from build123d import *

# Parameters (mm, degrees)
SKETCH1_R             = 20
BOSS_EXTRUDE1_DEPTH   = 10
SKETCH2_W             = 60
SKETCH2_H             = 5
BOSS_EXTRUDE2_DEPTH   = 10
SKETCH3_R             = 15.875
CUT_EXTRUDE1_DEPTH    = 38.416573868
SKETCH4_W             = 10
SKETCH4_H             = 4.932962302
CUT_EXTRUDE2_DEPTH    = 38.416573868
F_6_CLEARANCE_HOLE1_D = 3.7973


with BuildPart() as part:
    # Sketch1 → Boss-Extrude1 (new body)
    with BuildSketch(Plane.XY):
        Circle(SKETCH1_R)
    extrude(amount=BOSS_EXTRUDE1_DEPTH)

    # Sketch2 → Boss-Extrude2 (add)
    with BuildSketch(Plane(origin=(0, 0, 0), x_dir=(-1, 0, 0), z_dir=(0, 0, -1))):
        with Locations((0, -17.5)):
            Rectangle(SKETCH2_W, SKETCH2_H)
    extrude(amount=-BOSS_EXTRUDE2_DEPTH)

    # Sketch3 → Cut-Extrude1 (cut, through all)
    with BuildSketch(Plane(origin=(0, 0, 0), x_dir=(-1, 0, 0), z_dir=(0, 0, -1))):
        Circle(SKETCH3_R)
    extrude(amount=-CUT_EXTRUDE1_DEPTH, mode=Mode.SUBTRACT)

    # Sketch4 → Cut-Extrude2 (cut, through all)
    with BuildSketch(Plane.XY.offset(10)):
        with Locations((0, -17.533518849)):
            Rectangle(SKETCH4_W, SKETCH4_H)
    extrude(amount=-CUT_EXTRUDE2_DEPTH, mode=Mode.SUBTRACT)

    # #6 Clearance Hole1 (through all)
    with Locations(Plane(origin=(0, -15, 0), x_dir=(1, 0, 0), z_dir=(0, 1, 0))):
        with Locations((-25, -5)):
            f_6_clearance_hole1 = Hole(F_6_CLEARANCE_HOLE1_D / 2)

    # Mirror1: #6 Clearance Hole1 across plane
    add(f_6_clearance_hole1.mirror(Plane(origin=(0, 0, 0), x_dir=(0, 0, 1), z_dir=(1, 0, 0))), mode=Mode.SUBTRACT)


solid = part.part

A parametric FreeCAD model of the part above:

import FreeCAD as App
import Part
import Sketcher
from FreeCAD import Vector
Q = App.Units.Quantity

doc = App.newDocument("Part")
params = doc.addObject("Spreadsheet::Sheet", "Params")
for row, (alias, value) in enumerate([
    ("sketch1_diameter", "40 mm"),
    ("pad1_length", "10 mm"),
    ("sketch2_width", "60 mm"),
    ("sketch2_height", "5 mm"),
    ("pad2_length", "10 mm"),
    ("sketch3_diameter", "31.75 mm"),
    ("sketch4_width", "10 mm"),
    ("hole_diameter", "3.7973 mm"),
], start=1):
    params.set(f"A{row}", alias)
    params.set(f"B{row}", "=" + value)
    params.setAlias(f"B{row}", alias)

body = doc.addObject("PartDesign::Body", "Body")

# Sketch on XY plane
sketch1 = doc.addObject("Sketcher::SketchObject", "Sketch")
body.addObject(sketch1)
sketch1.AttachmentSupport = (doc.XY_Plane, [""])
sketch1.MapMode = "FlatFace"
sketch1.addGeometry(Part.Circle(Vector(0, 0, 0), Vector(0, 0, 1), 20), False)
sketch1.addConstraint(Sketcher.Constraint("Coincident", 0, 3, -1, 1))
sketch1.addConstraint(Sketcher.Constraint("Diameter", 0, Q("40 mm")))
sketch1.setExpression("Constraints[1]", "Params.sketch1_diameter")
pad1 = doc.addObject("PartDesign::Pad", "Pad")
body.addObject(pad1)
pad1.Profile = sketch1
pad1.setExpression("Length", "Params.pad1_length")

# Sketch on XY plane
sketch2 = doc.addObject("Sketcher::SketchObject", "Sketch001")
body.addObject(sketch2)
sketch2.AttachmentSupport = (doc.XY_Plane, [""])
sketch2.MapMode = "FlatFace"
sketch2.addGeometry(Part.LineSegment(Vector(30, -15, 0), Vector(30, -20, 0)), False)
sketch2.addGeometry(Part.LineSegment(Vector(30, -20, 0), Vector(-30, -20, 0)), False)
sketch2.addGeometry(Part.LineSegment(Vector(-30, -20, 0), Vector(-30, -15, 0)), False)
sketch2.addGeometry(Part.LineSegment(Vector(-30, -15, 0), Vector(30, -15, 0)), False)
sketch2.addConstraint(Sketcher.Constraint("Coincident", 0, 2, 1, 1))
sketch2.addConstraint(Sketcher.Constraint("Coincident", 1, 2, 2, 1))
sketch2.addConstraint(Sketcher.Constraint("Coincident", 2, 2, 3, 1))
sketch2.addConstraint(Sketcher.Constraint("Coincident", 3, 2, 0, 1))
sketch2.addConstraint(Sketcher.Constraint("Vertical", 0))
sketch2.addConstraint(Sketcher.Constraint("Horizontal", 1))
sketch2.addConstraint(Sketcher.Constraint("Vertical", 2))
sketch2.addConstraint(Sketcher.Constraint("Horizontal", 3))
sketch2.addConstraint(Sketcher.Constraint("DistanceX", 1, 2, 1, 1, Q("60 mm")))
sketch2.addConstraint(Sketcher.Constraint("DistanceY", 0, 2, 0, 1, Q("5 mm")))
sketch2.addConstraint(Sketcher.Constraint("DistanceX", -1, 1, 0, 2, Q("30 mm")))
sketch2.addConstraint(Sketcher.Constraint("DistanceY", 0, 2, -1, 1, Q("20 mm")))
sketch2.setExpression("Constraints[8]", "Params.sketch2_width")
sketch2.setExpression("Constraints[9]", "Params.sketch2_height")
pad2 = doc.addObject("PartDesign::Pad", "Pad001")
body.addObject(pad2)
pad2.Profile = sketch2
pad2.setExpression("Length", "Params.pad2_length")

# Sketch on XY plane
sketch3 = doc.addObject("Sketcher::SketchObject", "Sketch002")
body.addObject(sketch3)
sketch3.AttachmentSupport = (doc.XY_Plane, [""])
sketch3.MapMode = "FlatFace"
sketch3.addGeometry(Part.Circle(Vector(0, 0, 0), Vector(0, 0, 1), 15.875), False)
sketch3.addConstraint(Sketcher.Constraint("Coincident", 0, 3, -1, 1))
sketch3.addConstraint(Sketcher.Constraint("Diameter", 0, Q("31.75 mm")))
sketch3.setExpression("Constraints[1]", "Params.sketch3_diameter")
pocket1 = doc.addObject("PartDesign::Pocket", "Pocket")
body.addObject(pocket1)
pocket1.Profile = sketch3
pocket1.Type = "ThroughAll"
pocket1.Reversed = True

# Sketch on XY plane
sketch4 = doc.addObject("Sketcher::SketchObject", "Sketch003")
body.addObject(sketch4)
sketch4.AttachmentSupport = (doc.XY_Plane, [""])
sketch4.MapMode = "FlatFace"
sketch4.AttachmentOffset = App.Placement(Vector(0, 0, 10), App.Rotation())
sketch4.addGeometry(Part.LineSegment(Vector(-5, -15.067038, 0), Vector(-5, -20, 0)), False)
sketch4.addGeometry(Part.LineSegment(Vector(-5, -20, 0), Vector(5, -20, 0)), False)
sketch4.addGeometry(Part.LineSegment(Vector(5, -20, 0), Vector(5, -15.067038, 0)), False)
sketch4.addGeometry(Part.LineSegment(Vector(5, -15.067038, 0), Vector(-5, -15.067038, 0)), False)
sketch4.addConstraint(Sketcher.Constraint("Coincident", 0, 2, 1, 1))
sketch4.addConstraint(Sketcher.Constraint("Coincident", 1, 2, 2, 1))
sketch4.addConstraint(Sketcher.Constraint("Coincident", 2, 2, 3, 1))
sketch4.addConstraint(Sketcher.Constraint("Coincident", 3, 2, 0, 1))
sketch4.addConstraint(Sketcher.Constraint("Vertical", 0))
sketch4.addConstraint(Sketcher.Constraint("Horizontal", 1))
sketch4.addConstraint(Sketcher.Constraint("Vertical", 2))
sketch4.addConstraint(Sketcher.Constraint("Horizontal", 3))
sketch4.addConstraint(Sketcher.Constraint("DistanceX", 1, 1, 1, 2, Q("10 mm")))
sketch4.addConstraint(Sketcher.Constraint("DistanceX", 0, 2, -1, 1, Q("5 mm")))
sketch4.addConstraint(Sketcher.Constraint("DistanceY", 0, 2, -1, 1, Q("20 mm")))
sketch4.addConstraint(Sketcher.Constraint("DistanceY", 0, 2, 0, 1, Q("4.932962 mm")))
sketch4.setExpression("Constraints[8]", "Params.sketch4_width")
pocket2 = doc.addObject("PartDesign::Pocket", "Pocket001")
body.addObject(pocket2)
pocket2.Profile = sketch4
pocket2.Type = "ThroughAll"

# Sketch on XZ plane
sketch5 = doc.addObject("Sketcher::SketchObject", "Sketch004")
body.addObject(sketch5)
sketch5.AttachmentSupport = (doc.XZ_Plane, [""])
sketch5.MapMode = "FlatFace"
sketch5.AttachmentOffset = App.Placement(Vector(0, 0, 15), App.Rotation())
sketch5.addGeometry(Part.Circle(Vector(-25, 5, 0), Vector(0, 0, 1), 1.89865), False)
sketch5.addConstraint(Sketcher.Constraint("DistanceX", 0, 3, -1, 1, Q("25 mm")))
sketch5.addConstraint(Sketcher.Constraint("DistanceY", -1, 1, 0, 3, Q("5 mm")))
sketch5.addConstraint(Sketcher.Constraint("Diameter", 0, Q("3.7973 mm")))
doc.recompute()
hole = doc.addObject("PartDesign::Hole", "Hole")
body.addObject(hole)
hole.Profile = sketch5
hole.ThreadType = "None"
hole.setExpression("Diameter", "Params.hole_diameter")
hole.DepthType = "ThroughAll"
hole.Reversed = True
doc.recompute()

mirrored = doc.addObject("PartDesign::Mirrored", "Mirrored")
body.addObject(mirrored)
mirrored.Originals = [hole]
mirrored.MirrorPlane = (doc.YZ_Plane, [""])
body.Tip = mirrored

doc.recompute()
